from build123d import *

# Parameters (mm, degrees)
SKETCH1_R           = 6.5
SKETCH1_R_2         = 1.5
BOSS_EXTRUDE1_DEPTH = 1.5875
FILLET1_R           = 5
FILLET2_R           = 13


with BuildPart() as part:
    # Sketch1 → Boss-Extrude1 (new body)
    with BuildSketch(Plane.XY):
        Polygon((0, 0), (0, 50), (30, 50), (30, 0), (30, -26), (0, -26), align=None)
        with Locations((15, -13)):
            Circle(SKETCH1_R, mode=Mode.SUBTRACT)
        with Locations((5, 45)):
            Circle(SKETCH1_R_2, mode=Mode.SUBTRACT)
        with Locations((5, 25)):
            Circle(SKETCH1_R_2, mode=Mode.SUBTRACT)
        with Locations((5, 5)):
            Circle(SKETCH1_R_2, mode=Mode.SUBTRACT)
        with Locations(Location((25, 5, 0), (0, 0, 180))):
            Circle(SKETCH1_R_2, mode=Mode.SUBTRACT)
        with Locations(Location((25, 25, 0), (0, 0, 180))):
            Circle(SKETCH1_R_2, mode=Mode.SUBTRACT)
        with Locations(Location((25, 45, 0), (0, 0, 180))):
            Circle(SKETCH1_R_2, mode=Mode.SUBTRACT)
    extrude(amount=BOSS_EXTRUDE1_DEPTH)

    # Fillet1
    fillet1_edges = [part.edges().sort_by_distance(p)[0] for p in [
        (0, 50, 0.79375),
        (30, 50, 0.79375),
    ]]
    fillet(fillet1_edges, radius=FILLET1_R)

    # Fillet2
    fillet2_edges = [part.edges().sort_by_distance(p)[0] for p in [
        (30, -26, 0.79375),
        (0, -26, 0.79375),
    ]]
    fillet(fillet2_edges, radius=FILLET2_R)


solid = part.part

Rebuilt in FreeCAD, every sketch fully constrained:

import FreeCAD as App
import Part
import Sketcher
Q = App.Units.Quantity


def edges_at(feature, points):
    """Names of the edges that pass closest to the given points."""
    edges = feature.Shape.Edges
    near = lambda p: min(range(len(edges)), key=lambda i: edges[i].distToShape(Part.Vertex(*p))[0])
    return sorted({f"Edge{near(p) + 1}" for p in points})

doc = App.newDocument("Part")
body = doc.addObject("PartDesign::Body", "Body")

sketch1 = body.newObject("Sketcher::SketchObject", "Sketch")
sketch1.AttachmentSupport = (doc.getObject("XY_Plane"), [""])
sketch1.MapMode = "FlatFace"
sketch1.addGeometry(Part.LineSegment(App.Vector(0, 50, 0), App.Vector(0, -26, 0)), False)
sketch1.addGeometry(Part.LineSegment(App.Vector(0, -26, 0), App.Vector(30, -26, 0)), False)
sketch1.addGeometry(Part.LineSegment(App.Vector(30, -26, 0), App.Vector(30, 50, 0)), False)
sketch1.addGeometry(Part.LineSegment(App.Vector(30, 50, 0), App.Vector(0, 50, 0)), False)
sketch1.addGeometry(Part.Circle(App.Vector(25, 5, 0), App.Vector(0, 0, 1), 1.5), False)
sketch1.addGeometry(Part.Circle(App.Vector(15, -13, 0), App.Vector(0, 0, 1), 6.5), False)
sketch1.addGeometry(Part.Circle(App.Vector(5, 5, 0), App.Vector(0, 0, 1), 1.5), False)
sketch1.addGeometry(Part.Circle(App.Vector(25, 25, 0), App.Vector(0, 0, 1), 1.5), False)
sketch1.addGeometry(Part.Circle(App.Vector(25, 45, 0), App.Vector(0, 0, 1), 1.5), False)
sketch1.addGeometry(Part.Circle(App.Vector(5, 25, 0), App.Vector(0, 0, 1), 1.5), False)
sketch1.addGeometry(Part.Circle(App.Vector(5, 45, 0), App.Vector(0, 0, 1), 1.5), False)
sketch1.addConstraint(Sketcher.Constraint("Coincident", 0, 2, 1, 1))
sketch1.addConstraint(Sketcher.Constraint("Coincident", 1, 2, 2, 1))
sketch1.addConstraint(Sketcher.Constraint("Coincident", 2, 2, 3, 1))
sketch1.addConstraint(Sketcher.Constraint("Coincident", 3, 2, 0, 1))
sketch1.addConstraint(Sketcher.Constraint("Vertical", 0))
sketch1.addConstraint(Sketcher.Constraint("Horizontal", 1))
sketch1.addConstraint(Sketcher.Constraint("Vertical", 2))
sketch1.addConstraint(Sketcher.Constraint("Horizontal", 3))
sketch1.addConstraint(Sketcher.Constraint("Equal", 4, 6))
sketch1.addConstraint(Sketcher.Constraint("Equal", 6, 7))
sketch1.addConstraint(Sketcher.Constraint("Equal", 7, 8))
sketch1.addConstraint(Sketcher.Constraint("Equal", 8, 9))
sketch1.addConstraint(Sketcher.Constraint("Equal", 9, 10))
sketch1.addConstraint(Sketcher.Constraint("PointOnObject", 0, 2, -2))
sketch1.addConstraint(Sketcher.Constraint("Horizontal", 4, 3, 6, 3))
sketch1.addConstraint(Sketcher.Constraint("Horizontal", 7, 3, 9, 3))
sketch1.addConstraint(Sketcher.Constraint("Horizontal", 8, 3, 10, 3))
sketch1.addConstraint(Sketcher.Constraint("Vertical", 4, 3, 7, 3))
sketch1.addConstraint(Sketcher.Constraint("Vertical", 7, 3, 8, 3))
sketch1.addConstraint(Sketcher.Constraint("Vertical", 6, 3, 9, 3))
sketch1.addConstraint(Sketcher.Constraint("Vertical", 9, 3, 10, 3))
sketch1.addConstraint(Sketcher.Constraint("Diameter", 4, Q("3 mm")))
sketch1.addConstraint(Sketcher.Constraint("Diameter", 5, Q("13 mm")))
sketch1.addConstraint(Sketcher.Constraint("DistanceX", 1, 1, 1, 2, Q("30 mm")))
sketch1.addConstraint(Sketcher.Constraint("DistanceY", 0, 2, 0, 1, Q("76 mm")))
sketch1.addConstraint(Sketcher.Constraint("DistanceX", -1, 1, 4, 3, Q("25 mm")))
sketch1.addConstraint(Sketcher.Constraint("DistanceY", -1, 1, 4, 3, Q("5 mm")))
sketch1.addConstraint(Sketcher.Constraint("DistanceX", -1, 1, 5, 3, Q("15 mm")))
sketch1.addConstraint(Sketcher.Constraint("DistanceY", 5, 3, -1, 1, Q("13 mm")))
sketch1.addConstraint(Sketcher.Constraint("DistanceX", -1, 1, 6, 3, Q("5 mm")))
sketch1.addConstraint(Sketcher.Constraint("DistanceY", -1, 1, 7, 3, Q("25 mm")))
sketch1.addConstraint(Sketcher.Constraint("DistanceY", -1, 1, 8, 3, Q("45 mm")))
sketch1.addConstraint(Sketcher.Constraint("DistanceY", 0, 2, -1, 1, Q("26 mm")))
pad1 = body.newObject("PartDesign::Pad", "Pad")
pad1.Profile = sketch1
pad1.Length = 1.5875
doc.recompute()

fillet = body.newObject("PartDesign::Fillet", "Fillet")
fillet.Base = (pad1, edges_at(pad1, [(0, 50, 0.794), (30, 50, 0.794)]))
fillet.Radius = 5
doc.recompute()

fillet2 = body.newObject("PartDesign::Fillet", "Fillet001")
fillet2.Base = (fillet, edges_at(fillet, [(30, -26, 0.794), (0, -26, 0.794)]))
fillet2.Radius = 13

doc.recompute()
